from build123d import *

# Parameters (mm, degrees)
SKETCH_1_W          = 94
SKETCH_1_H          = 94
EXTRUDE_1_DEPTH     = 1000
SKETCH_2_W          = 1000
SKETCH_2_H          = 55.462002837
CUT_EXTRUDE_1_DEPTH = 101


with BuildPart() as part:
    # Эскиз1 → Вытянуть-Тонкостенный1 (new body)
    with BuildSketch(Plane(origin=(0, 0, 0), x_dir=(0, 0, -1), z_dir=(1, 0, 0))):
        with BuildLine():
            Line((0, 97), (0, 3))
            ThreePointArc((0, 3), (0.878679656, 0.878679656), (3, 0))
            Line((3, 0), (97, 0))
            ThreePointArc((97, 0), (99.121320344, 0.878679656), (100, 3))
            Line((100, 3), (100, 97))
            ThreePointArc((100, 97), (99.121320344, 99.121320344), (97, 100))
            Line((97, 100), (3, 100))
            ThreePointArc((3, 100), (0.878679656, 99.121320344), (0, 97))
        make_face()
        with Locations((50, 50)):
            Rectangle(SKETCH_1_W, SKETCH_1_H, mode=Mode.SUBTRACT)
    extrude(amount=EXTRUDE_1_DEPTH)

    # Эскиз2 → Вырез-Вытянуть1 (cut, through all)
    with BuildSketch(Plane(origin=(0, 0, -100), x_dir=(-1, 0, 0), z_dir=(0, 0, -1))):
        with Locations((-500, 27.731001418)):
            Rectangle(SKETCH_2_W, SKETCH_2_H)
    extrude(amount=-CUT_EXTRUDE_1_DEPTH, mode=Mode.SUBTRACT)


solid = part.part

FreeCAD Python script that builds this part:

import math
import FreeCAD as App
import Part
import Sketcher
from FreeCAD import Vector
Q = App.Units.Quantity

doc = App.newDocument("Part")
params = doc.addObject("Spreadsheet::Sheet", "Params")
for row, (alias, value) in enumerate([
    ("sketch1_radius", "3 mm"),
    ("sketch1_width", "94 mm"),
    ("pad1_length", "1000 mm"),
    ("sketch2_width", "1000 mm"),
], start=1):
    params.set(f"A{row}", alias)
    params.set(f"B{row}", "=" + value)
    params.setAlias(f"B{row}", alias)

body = doc.addObject("PartDesign::Body", "Body")

# Sketch on YZ plane
sketch1 = body.newObject("Sketcher::SketchObject", "Sketch")
sketch1.AttachmentSupport = (doc.getObject("YZ_Plane"), [""])
sketch1.MapMode = "FlatFace"
sketch1.addGeometry([
    Part.LineSegment(Vector(97, 0, 0), Vector(3, 0, 0)),  # 0
    Part.ArcOfCircle(Part.Circle(Vector(3, -3, 0), Vector(0, 0, 1), 3), math.radians(90), math.radians(180)),  # 1
    Part.LineSegment(Vector(0, -3, 0), Vector(0, -97, 0)),  # 2
    Part.ArcOfCircle(Part.Circle(Vector(3, -97, 0), Vector(0, 0, 1), 3), math.radians(180), math.radians(270)),  # 3
    Part.LineSegment(Vector(3, -100, 0), Vector(97, -100, 0)),  # 4
    Part.ArcOfCircle(Part.Circle(Vector(97, -97, 0), Vector(0, 0, 1), 3), math.radians(-90), math.radians(0)),  # 5
    Part.LineSegment(Vector(100, -97, 0), Vector(100, -3, 0)),  # 6
    Part.ArcOfCircle(Part.Circle(Vector(97, -3, 0), Vector(0, 0, 1), 3), math.radians(0), math.radians(90)),  # 7
    Part.LineSegment(Vector(3, -97, 0), Vector(3, -3, 0)),  # 8
    Part.LineSegment(Vector(3, -3, 0), Vector(97, -3, 0)),  # 9
    Part.LineSegment(Vector(97, -3, 0), Vector(97, -97, 0)),  # 10
    Part.LineSegment(Vector(97, -97, 0), Vector(3, -97, 0)),  # 11
], False)
sketch1.addConstraint([
    Sketcher.Constraint("Tangent", 0, 2, 1, 1),
    Sketcher.Constraint("Tangent", 1, 2, 2, 1),
    Sketcher.Constraint("Tangent", 2, 2, 3, 1),
    Sketcher.Constraint("Tangent", 3, 2, 4, 1),
    Sketcher.Constraint("Tangent", 4, 2, 5, 1),
    Sketcher.Constraint("Tangent", 5, 2, 6, 1),
    Sketcher.Constraint("Tangent", 6, 2, 7, 1),
    Sketcher.Constraint("Tangent", 7, 2, 0, 1),
    Sketcher.Constraint("Coincident", 8, 2, 9, 1),
    Sketcher.Constraint("Coincident", 9, 2, 10, 1),
    Sketcher.Constraint("Coincident", 10, 2, 11, 1),
    Sketcher.Constraint("Coincident", 11, 2, 8, 1),
    Sketcher.Constraint("Horizontal", 0),
    Sketcher.Constraint("Vertical", 2),
    Sketcher.Constraint("Horizontal", 4),
    Sketcher.Constraint("Vertical", 6),
    Sketcher.Constraint("Vertical", 8),
    Sketcher.Constraint("Horizontal", 9),
    Sketcher.Constraint("Vertical", 10),
    Sketcher.Constraint("Horizontal", 11),
    Sketcher.Constraint("Coincident", 8, 2, 1, 3),
    Sketcher.Constraint("Coincident", 9, 2, 7, 3),
    Sketcher.Constraint("Coincident", 10, 2, 5, 3),
    Sketcher.Constraint("Equal", 1, 3),
    Sketcher.Constraint("PointOnObject", 0, 2, -1),
    Sketcher.Constraint("PointOnObject", 1, 2, -2),
    Sketcher.Constraint("Equal", 11, 2),
    Sketcher.Constraint("Radius", 1, Q("3 mm")),
    Sketcher.Constraint("DistanceX", 0, 2, 0, 1, Q("94 mm")),
])
sketch1.setExpression("Constraints[27]", "Params.sketch1_radius")
sketch1.setExpression("Constraints[28]", "Params.sketch1_width")
pad1 = body.newObject("PartDesign::Pad", "Pad")
pad1.Profile = sketch1
pad1.setExpression("Length", "Params.pad1_length")

# Sketch on XY plane
sketch2 = body.newObject("Sketcher::SketchObject", "Sketch001")
sketch2.AttachmentSupport = (doc.getObject("XY_Plane"), [""])
sketch2.MapMode = "FlatFace"
sketch2.AttachmentOffset = App.Placement(Vector(0, 0, -100), App.Rotation())
sketch2.addGeometry([
    Part.LineSegment(Vector(1000, 55.462003, 0), Vector(1000, 0, 0)),
    Part.LineSegment(Vector(1000, 0, 0), Vector(0, 0, 0)),
    Part.LineSegment(Vector(0, 0, 0), Vector(0, 55.462003, 0)),
    Part.LineSegment(Vector(0, 55.462003, 0), Vector(1000, 55.462003, 0)),
], False)
sketch2.addConstraint([
    Sketcher.Constraint("Coincident", 0, 2, 1, 1),
    Sketcher.Constraint("Coincident", 1, 2, 2, 1),
    Sketcher.Constraint("Coincident", 2, 2, 3, 1),
    Sketcher.Constraint("Coincident", 3, 2, 0, 1),
    Sketcher.Constraint("Vertical", 0),
    Sketcher.Constraint("Horizontal", 1),
    Sketcher.Constraint("Vertical", 2),
    Sketcher.Constraint("Horizontal", 3),
    Sketcher.Constraint("Coincident", 1, 2, -1, 1),
    Sketcher.Constraint("DistanceX", 1, 2, 1, 1, Q("1000 mm")),
    Sketcher.Constraint("DistanceY", 0, 2, 0, 1, Q("55.462003 mm")),
])
sketch2.setExpression("Constraints[9]", "Params.sketch2_width")
pocket1 = body.newObject("PartDesign::Pocket", "Pocket")
pocket1.Profile = sketch2
pocket1.Type = "ThroughAll"
pocket1.Reversed = True

doc.recompute()
